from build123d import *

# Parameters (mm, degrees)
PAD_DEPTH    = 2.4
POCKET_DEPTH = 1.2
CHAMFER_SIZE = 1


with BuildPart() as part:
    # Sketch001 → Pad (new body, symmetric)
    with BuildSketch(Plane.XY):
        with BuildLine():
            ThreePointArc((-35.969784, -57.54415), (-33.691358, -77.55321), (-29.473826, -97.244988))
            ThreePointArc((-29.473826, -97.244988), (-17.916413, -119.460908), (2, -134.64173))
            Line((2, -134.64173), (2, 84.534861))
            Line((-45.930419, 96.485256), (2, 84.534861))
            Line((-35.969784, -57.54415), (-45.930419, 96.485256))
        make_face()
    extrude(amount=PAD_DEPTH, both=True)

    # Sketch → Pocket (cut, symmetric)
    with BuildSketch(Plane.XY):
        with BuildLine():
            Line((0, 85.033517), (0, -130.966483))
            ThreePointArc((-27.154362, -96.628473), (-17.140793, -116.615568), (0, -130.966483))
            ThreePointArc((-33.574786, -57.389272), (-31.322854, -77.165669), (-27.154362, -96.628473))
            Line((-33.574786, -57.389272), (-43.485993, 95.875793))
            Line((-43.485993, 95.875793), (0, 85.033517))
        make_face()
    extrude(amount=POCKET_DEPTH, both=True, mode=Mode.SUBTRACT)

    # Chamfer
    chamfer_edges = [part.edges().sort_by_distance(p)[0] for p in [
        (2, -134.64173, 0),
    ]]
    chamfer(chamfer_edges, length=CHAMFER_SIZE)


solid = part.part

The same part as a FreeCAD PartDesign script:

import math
import FreeCAD as App
import Part
import Sketcher

V = App.Vector
Q = App.Units.Quantity


def edges_at(feature, points):
    """Names of the edges that pass closest to the given points."""
    edges = feature.Shape.Edges
    near = lambda p: min(range(len(edges)), key=lambda i: edges[i].distToShape(Part.Vertex(*p))[0])
    return sorted({f"Edge{near(p) + 1}" for p in points})

doc = App.newDocument("Part")
body = doc.addObject("PartDesign::Body", "Body")

# Sketch on XY plane
sketch1 = doc.addObject("Sketcher::SketchObject", "Sketch")
body.addObject(sketch1)
sketch1.AttachmentSupport = (doc.XY_Plane, [""])
sketch1.MapMode = "FlatFace"
sketch1.addGeometry([
    Part.ArcOfCircle(Part.Circle(V(170, -44, 0), V(0, 0, 1), 206), math.radians(-176.3), math.radians(-165.11)),  # 0
    Part.ArcOfCircle(Part.Circle(V(26, -83, 0), V(0, 0, 1), 57), math.radians(-165), math.radians(-115)),  # 1
    Part.LineSegment(V(2, -135, 0), V(2, 85, 0)),  # 2
    Part.LineSegment(V(2, 85, 0), V(-46, 96, 0)),  # 3
    Part.LineSegment(V(-46, 96, 0), V(-36, -58, 0)),  # 4
], False)
sketch1.addConstraint([
    Sketcher.Constraint("Tangent", 0, 2, 1, 1),
    Sketcher.Constraint("Coincident", 1, 2, 2, 1),
    Sketcher.Constraint("Coincident", 2, 2, 3, 1),
    Sketcher.Constraint("Coincident", 3, 2, 4, 1),
    Sketcher.Constraint("Tangent", 4, 2, 0, 1),
    Sketcher.Constraint("Vertical", 2),
    Sketcher.Constraint("Radius", 1, Q("57.399998 mm")),
    Sketcher.Constraint("Angle", 3, Q("166.000001 deg")),
    Sketcher.Constraint("DistanceX", -1, 1, 1, 2, Q("2 mm")),
    Sketcher.Constraint("Angle", 4, Q("-86.3 deg")),
    Sketcher.Constraint("DistanceY", 1, 3, -1, 1, Q("82.500001 mm")),
    Sketcher.Constraint("Radius", 0, Q("206.400013 mm")),
    Sketcher.Constraint("DistanceY", 2, 1, 2, 2, Q("219.176591 mm")),
    Sketcher.Constraint("DistanceY", 0, 3, -1, 1, Q("44.224679 mm")),
    Sketcher.Constraint("DistanceY", 1, 2, -1, 1, Q("134.64173 mm")),
])
pad1 = doc.addObject("PartDesign::Pad", "Pad")
body.addObject(pad1)
pad1.Profile = sketch1
pad1.Length = 4.8
pad1.Midplane = True

# Sketch on XY plane
sketch2 = doc.addObject("Sketcher::SketchObject", "Sketch001")
body.addObject(sketch2)
sketch2.AttachmentSupport = (doc.XY_Plane, [""])
sketch2.MapMode = "FlatFace"
sketch2.addGeometry([
    Part.LineSegment(V(0, -131, 0), V(0, 85, 0)),  # 0
    Part.LineSegment(V(0, 85, 0), V(-43, 96, 0)),  # 1
    Part.LineSegment(V(-43, 96, 0), V(-34, -57, 0)),  # 2
    Part.ArcOfCircle(Part.Circle(V(170, -44, 0), V(0, 0, 1), 204), math.radians(-176.3), math.radians(-165.11)),  # 3
    Part.ArcOfCircle(Part.Circle(V(26, -83, 0), V(0, 0, 1), 55), math.radians(-165), math.radians(-118)),  # 4
], False)
sketch2.addConstraint([
    Sketcher.Constraint("Coincident", 0, 2, 1, 1),
    Sketcher.Constraint("Coincident", 1, 2, 2, 1),
    Sketcher.Constraint("Tangent", 2, 2, 3, 1),
    Sketcher.Constraint("Tangent", 3, 2, 4, 1),
    Sketcher.Constraint("Coincident", 4, 2, 0, 1),
    Sketcher.Constraint("Vertical", 0),
    Sketcher.Constraint("PointOnObject", 0, 2, -2),
    Sketcher.Constraint("DistanceY", 0, 1, 0, 2, Q("216 mm")),
    Sketcher.Constraint("Angle", 1, Q("166 deg")),
    Sketcher.Constraint("Angle", 2, Q("-86.3 deg")),
    Sketcher.Constraint("Radius", 3, Q("203.999835 mm")),
    Sketcher.Constraint("Radius", 4, Q("54.999996 mm")),
    Sketcher.Constraint("DistanceY", 3, 3, 1, 2, Q("140.1005 mm")),
    Sketcher.Constraint("DistanceY", 2, 2, -1, 1, Q("57.389272 mm")),
    Sketcher.Constraint("DistanceX", 3, 2, -1, 1, Q("27.154362 mm")),
])
pocket1 = doc.addObject("PartDesign::Pocket", "Pocket")
body.addObject(pocket1)
pocket1.Profile = sketch2
pocket1.Length = 2.4
pocket1.Midplane = True
doc.recompute()

chamfer = doc.addObject("PartDesign::Chamfer", "Chamfer")
body.addObject(chamfer)
chamfer.Base = (pocket1, edges_at(pocket1, [(2, -134.642, 0)]))
chamfer.Size = 1

doc.recompute()
